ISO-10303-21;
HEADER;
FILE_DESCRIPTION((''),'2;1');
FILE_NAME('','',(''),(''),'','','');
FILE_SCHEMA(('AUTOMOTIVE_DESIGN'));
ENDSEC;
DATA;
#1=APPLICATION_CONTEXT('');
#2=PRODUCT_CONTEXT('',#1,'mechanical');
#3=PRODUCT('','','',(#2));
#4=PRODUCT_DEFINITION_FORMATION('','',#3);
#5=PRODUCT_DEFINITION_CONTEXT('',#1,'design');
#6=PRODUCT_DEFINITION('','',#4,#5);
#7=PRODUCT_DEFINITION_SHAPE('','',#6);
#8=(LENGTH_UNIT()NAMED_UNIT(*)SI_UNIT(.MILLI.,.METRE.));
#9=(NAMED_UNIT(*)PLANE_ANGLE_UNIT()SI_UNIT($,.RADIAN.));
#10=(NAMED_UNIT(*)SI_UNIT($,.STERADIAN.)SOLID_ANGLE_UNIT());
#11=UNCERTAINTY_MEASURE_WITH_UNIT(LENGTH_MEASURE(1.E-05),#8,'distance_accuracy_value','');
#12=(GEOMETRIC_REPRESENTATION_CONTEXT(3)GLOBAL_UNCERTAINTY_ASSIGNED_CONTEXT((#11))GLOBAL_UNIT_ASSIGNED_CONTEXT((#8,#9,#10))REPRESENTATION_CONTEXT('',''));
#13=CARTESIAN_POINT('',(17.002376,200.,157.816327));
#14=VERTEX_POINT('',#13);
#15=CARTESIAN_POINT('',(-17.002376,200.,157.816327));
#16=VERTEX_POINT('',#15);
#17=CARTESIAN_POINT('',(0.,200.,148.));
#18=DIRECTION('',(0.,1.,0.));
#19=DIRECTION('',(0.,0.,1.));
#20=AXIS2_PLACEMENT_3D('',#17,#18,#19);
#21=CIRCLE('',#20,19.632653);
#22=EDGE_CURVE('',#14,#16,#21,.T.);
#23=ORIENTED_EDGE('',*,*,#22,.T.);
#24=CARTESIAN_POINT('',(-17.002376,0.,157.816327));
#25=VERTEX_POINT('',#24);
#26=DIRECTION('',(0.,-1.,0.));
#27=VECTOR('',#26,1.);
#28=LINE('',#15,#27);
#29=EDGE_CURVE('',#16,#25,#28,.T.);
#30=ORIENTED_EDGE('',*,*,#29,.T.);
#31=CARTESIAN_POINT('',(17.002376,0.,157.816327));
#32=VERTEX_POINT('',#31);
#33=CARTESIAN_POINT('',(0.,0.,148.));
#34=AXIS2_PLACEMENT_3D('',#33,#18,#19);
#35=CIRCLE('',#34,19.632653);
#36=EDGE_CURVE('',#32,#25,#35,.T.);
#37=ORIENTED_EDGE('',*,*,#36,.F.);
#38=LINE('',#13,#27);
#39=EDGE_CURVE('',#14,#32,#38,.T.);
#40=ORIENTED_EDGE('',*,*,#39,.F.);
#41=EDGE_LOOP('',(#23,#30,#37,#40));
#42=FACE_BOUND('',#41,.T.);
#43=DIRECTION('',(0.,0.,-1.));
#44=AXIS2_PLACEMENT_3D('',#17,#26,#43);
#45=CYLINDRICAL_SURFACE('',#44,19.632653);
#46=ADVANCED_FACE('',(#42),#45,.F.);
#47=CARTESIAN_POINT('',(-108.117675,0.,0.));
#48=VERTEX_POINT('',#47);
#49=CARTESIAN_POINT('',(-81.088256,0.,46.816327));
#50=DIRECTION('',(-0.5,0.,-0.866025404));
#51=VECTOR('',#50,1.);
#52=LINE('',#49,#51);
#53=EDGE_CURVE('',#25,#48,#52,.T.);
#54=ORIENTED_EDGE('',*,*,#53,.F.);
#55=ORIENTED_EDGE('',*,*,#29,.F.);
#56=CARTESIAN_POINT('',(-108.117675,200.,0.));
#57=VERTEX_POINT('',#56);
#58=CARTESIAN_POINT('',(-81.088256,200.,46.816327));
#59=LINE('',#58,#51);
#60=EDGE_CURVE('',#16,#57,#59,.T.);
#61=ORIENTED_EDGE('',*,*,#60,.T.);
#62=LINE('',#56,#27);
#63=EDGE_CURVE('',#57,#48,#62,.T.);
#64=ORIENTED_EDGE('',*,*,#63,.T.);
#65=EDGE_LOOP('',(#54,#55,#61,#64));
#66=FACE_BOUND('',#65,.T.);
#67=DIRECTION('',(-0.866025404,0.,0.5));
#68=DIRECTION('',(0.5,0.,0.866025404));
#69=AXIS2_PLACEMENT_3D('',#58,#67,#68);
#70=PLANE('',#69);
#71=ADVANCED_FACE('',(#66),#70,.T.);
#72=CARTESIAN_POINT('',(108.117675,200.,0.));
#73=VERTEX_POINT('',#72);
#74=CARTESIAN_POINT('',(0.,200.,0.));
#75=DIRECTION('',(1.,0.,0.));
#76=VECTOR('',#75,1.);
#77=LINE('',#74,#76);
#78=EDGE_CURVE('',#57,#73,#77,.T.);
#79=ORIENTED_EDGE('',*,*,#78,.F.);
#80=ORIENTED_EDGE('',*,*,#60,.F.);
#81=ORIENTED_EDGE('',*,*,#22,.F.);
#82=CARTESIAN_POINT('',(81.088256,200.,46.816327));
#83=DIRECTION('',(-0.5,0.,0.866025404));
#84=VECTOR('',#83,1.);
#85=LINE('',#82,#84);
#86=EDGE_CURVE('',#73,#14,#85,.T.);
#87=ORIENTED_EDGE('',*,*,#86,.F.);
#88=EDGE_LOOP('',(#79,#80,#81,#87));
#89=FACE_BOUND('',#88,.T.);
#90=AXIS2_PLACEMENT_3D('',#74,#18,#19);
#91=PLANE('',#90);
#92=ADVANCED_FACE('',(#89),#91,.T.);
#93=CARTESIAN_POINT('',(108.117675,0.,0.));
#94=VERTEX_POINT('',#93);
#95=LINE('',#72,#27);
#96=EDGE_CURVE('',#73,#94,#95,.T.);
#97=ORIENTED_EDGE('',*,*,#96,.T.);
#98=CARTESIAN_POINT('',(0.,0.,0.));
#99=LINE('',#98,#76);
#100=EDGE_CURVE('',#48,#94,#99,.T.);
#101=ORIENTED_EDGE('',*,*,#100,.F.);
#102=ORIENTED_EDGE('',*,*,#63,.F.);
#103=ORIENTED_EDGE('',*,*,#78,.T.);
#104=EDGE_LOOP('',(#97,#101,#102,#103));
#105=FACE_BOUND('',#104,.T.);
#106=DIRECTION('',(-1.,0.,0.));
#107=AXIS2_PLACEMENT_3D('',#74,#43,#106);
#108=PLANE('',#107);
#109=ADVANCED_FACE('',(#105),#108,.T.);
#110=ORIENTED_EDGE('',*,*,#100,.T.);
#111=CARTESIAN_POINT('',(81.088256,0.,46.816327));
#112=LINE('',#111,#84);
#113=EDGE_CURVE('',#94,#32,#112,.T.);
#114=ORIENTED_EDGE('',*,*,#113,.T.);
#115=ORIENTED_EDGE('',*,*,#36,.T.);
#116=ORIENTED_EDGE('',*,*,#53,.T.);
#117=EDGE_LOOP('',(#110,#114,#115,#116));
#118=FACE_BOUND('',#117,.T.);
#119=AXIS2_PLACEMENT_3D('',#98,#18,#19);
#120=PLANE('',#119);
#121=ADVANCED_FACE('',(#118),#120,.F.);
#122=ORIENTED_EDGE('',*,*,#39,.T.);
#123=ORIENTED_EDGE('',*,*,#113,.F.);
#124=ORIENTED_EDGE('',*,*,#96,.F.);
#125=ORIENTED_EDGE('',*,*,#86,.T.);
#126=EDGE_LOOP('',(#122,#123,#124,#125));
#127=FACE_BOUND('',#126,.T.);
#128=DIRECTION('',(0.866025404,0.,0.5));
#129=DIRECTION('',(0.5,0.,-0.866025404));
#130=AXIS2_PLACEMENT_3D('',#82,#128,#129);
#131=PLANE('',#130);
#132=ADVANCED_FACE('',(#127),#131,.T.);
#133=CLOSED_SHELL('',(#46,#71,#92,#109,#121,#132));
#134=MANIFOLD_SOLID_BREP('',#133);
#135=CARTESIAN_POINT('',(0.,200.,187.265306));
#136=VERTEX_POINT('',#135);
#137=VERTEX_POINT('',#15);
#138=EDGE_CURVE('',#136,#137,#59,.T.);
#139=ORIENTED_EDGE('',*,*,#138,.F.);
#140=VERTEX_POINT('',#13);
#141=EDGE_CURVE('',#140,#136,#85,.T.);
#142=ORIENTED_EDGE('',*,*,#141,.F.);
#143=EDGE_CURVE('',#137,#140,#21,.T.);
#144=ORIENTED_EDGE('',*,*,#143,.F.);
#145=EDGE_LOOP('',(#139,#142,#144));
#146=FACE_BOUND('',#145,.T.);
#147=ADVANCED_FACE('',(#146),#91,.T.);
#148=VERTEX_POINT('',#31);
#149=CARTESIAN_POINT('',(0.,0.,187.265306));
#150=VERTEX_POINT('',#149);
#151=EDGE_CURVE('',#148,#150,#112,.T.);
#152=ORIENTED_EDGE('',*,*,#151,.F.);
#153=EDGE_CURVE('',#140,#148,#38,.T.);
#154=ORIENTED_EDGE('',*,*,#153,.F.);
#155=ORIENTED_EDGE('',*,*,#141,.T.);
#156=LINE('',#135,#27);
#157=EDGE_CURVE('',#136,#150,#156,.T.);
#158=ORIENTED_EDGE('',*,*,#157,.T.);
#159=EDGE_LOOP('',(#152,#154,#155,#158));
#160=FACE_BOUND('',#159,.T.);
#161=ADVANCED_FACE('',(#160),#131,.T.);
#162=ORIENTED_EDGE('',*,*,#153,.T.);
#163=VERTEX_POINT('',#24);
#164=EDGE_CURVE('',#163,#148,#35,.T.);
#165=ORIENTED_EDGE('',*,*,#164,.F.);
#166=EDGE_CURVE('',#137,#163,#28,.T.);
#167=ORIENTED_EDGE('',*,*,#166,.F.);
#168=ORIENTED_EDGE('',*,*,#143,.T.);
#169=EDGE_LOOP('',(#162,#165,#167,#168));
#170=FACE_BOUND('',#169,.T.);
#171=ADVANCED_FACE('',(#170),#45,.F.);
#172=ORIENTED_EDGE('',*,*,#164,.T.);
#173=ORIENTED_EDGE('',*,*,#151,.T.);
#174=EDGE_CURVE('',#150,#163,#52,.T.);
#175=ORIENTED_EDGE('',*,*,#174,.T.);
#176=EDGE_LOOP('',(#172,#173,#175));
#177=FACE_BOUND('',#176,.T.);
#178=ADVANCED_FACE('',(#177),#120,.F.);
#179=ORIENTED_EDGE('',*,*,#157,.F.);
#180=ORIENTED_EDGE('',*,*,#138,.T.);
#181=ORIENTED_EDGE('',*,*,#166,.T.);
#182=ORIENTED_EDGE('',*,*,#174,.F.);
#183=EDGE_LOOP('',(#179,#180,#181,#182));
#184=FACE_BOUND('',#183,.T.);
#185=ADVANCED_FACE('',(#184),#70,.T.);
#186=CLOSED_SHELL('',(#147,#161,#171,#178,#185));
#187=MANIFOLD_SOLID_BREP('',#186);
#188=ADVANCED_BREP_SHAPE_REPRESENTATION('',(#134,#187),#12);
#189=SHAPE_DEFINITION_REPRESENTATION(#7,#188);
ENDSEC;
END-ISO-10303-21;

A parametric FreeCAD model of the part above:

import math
import FreeCAD as App
import Part
import Sketcher

V = App.Vector
Q = App.Units.Quantity

doc = App.newDocument("Part")
body = doc.addObject("PartDesign::Body", "Body")
body.AllowCompound = True

sketch1 = body.newObject("Sketcher::SketchObject", "Sketch")
sketch1.AttachmentSupport = (doc.getObject("XZ_Plane"), [""])
sketch1.MapMode = "FlatFace"
sketch1.addGeometry([
    Part.LineSegment(V(108.117675, 0, 0), V(-108.117675, 0, 0)),
    Part.LineSegment(V(-108.117675, 0, 0), V(-17.002377, 157.816326, 0)),
    Part.ArcOfCircle(Part.Circle(V(0, 148, 0), V(0, 0, 1), 19.632653), math.radians(150.000002), math.radians(360)),
    Part.ArcOfCircle(Part.Circle(V(0, 148, 0), V(0, 0, 1), 19.632653), math.radians(0), math.radians(29.999998)),
    Part.LineSegment(V(17.002377, 157.816326, 0), V(108.117675, 0, 0)),
    Part.ArcOfCircle(Part.Circle(V(0, 148, 0), V(0, 0, 1), 19.632653), math.radians(90), math.radians(150.000002)),
    Part.LineSegment(V(-17.002377, 157.816326, 0), V(0, 187.265306, 0)),
    Part.LineSegment(V(0, 187.265306, 0), V(17.002377, 157.816326, 0)),
    Part.ArcOfCircle(Part.Circle(V(0, 148, 0), V(0, 0, 1), 19.632653), math.radians(29.999998), math.radians(90)),
], False)
sketch1.addConstraint([
    Sketcher.Constraint("Coincident", 0, 2, 1, 1),
    Sketcher.Constraint("Tangent", 1, 2, 2, 1),
    Sketcher.Constraint("Tangent", 2, 2, 3, 1),
    Sketcher.Constraint("Tangent", 3, 2, 4, 1),
    Sketcher.Constraint("Coincident", 4, 2, 0, 1),
    Sketcher.Constraint("Tangent", 5, 2, 6, 1),
    Sketcher.Constraint("Coincident", 6, 2, 7, 1),
    Sketcher.Constraint("Tangent", 7, 2, 8, 1),
    Sketcher.Constraint("Tangent", 8, 2, 5, 1),
    Sketcher.Constraint("Horizontal", 0),
    Sketcher.Constraint("Coincident", 5, 3, 2, 3),
    Sketcher.Constraint("Coincident", 5, 2, 1, 2),
    Sketcher.Constraint("Coincident", 7, 2, 3, 2),
    Sketcher.Constraint("Equal", 2, 3),
    Sketcher.Constraint("Symmetric", 0, 2, 4, 2, -1, 1),
    Sketcher.Constraint("PointOnObject", 2, 3, -2),
    Sketcher.Constraint("PointOnObject", 8, 2, -2),
    Sketcher.Constraint("Horizontal", 8, 3, 2, 2),
    Sketcher.Constraint("Angle", 1, Q("60 deg")),
    Sketcher.Constraint("DistanceY", -1, 1, 2, 3, Q("148 mm")),
    Sketcher.Constraint("Radius", 2, Q("19.632653 mm")),
])
pad1 = body.newObject("PartDesign::Pad", "Pad")
pad1.Profile = sketch1
pad1.Length = 200
pad1.Reversed = True

doc.recompute()
